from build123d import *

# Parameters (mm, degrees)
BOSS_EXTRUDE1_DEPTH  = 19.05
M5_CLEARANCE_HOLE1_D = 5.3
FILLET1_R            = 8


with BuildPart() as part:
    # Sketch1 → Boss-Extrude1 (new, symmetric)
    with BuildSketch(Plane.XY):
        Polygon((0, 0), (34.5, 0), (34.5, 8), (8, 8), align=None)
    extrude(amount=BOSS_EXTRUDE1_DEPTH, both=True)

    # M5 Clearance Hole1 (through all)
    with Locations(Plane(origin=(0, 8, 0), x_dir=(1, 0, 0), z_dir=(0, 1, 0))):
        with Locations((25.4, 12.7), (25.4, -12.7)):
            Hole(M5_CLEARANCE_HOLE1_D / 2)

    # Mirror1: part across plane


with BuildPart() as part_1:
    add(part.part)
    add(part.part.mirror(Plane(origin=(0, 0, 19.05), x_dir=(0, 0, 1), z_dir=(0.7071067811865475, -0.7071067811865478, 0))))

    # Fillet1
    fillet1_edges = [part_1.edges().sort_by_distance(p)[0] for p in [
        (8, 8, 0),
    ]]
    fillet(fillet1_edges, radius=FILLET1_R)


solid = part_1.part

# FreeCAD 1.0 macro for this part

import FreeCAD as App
import Part
import Sketcher
from FreeCAD import Vector
Q = App.Units.Quantity


def edges_at(feature, points):
    """Names of the edges that pass closest to the given points."""
    edges = feature.Shape.Edges
    near = lambda p: min(range(len(edges)), key=lambda i: edges[i].distToShape(Part.Vertex(*p))[0])
    return sorted({f"Edge{near(p) + 1}" for p in points})


def add_polygon(sketch, points):
    """Adds a closed chain of lines whose ends are joined by coincident constraints."""
    first, n = sketch.GeometryCount, len(points)
    for a, b in zip(points, points[1:] + points[:1]):
        sketch.addGeometry(Part.LineSegment(App.Vector(*a, 0), App.Vector(*b, 0)), False)
    for i in range(n):
        sketch.addConstraint(Sketcher.Constraint("Coincident", first + i, 2, first + (i + 1) % n, 1))

doc = App.newDocument("Part")
body = doc.addObject("PartDesign::Body", "Body")

sketch1 = body.newObject("Sketcher::SketchObject", "Sketch")
sketch1.AttachmentSupport = (doc.getObject("XY_Plane"), [""])
sketch1.MapMode = "FlatFace"
add_polygon(sketch1, [(0, 0), (34.5, 0), (34.5, 8), (8, 8)])
sketch1.addConstraint([
    Sketcher.Constraint("Horizontal", 0),
    Sketcher.Constraint("Vertical", 1),
    Sketcher.Constraint("Horizontal", 2),
    Sketcher.Constraint("Coincident", 3, 2, -1, 1),
    Sketcher.Constraint("DistanceY", 1, 1, 1, 2, 8.0),
    Sketcher.Constraint("Angle", 3, Q("-135 deg")),
    Sketcher.Constraint("DistanceX", 0, 1, 0, 2, 34.5),
])
pad1 = body.newObject("PartDesign::Pad", "Pad")
pad1.Profile = sketch1
pad1.Length = 38.1
pad1.Midplane = True

sketch2 = body.newObject("Sketcher::SketchObject", "Sketch001")
sketch2.AttachmentSupport = (doc.getObject("XZ_Plane"), [""])
sketch2.MapMode = "FlatFace"
sketch2.AttachmentOffset = App.Placement(Vector(0, 0, -8), App.Rotation())
sketch2.addGeometry([
    Part.Circle(Vector(25.4, -12.7, 0), Vector(0, 0, 1), 2.65),
    Part.Circle(Vector(25.4, 12.7, 0), Vector(0, 0, 1), 2.65),
], False)
sketch2.addConstraint([
    Sketcher.Constraint("Equal", 0, 1),
    Sketcher.Constraint("Symmetric", 0, 3, 1, 3, -1),
    Sketcher.Constraint("Diameter", 0, 5.3),
    Sketcher.Constraint("DistanceX", -1, 1, 0, 3, 25.4),
    Sketcher.Constraint("DistanceY", 0, 3, -1, 1, 12.7),
])
doc.recompute()
hole = body.newObject("PartDesign::Hole", "Hole")
hole.Profile = sketch2
hole.ThreadType = "None"
hole.Diameter = 5.3
hole.DepthType = "ThroughAll"
hole.Reversed = True
body2 = doc.addObject("PartDesign::Body", "Body001")
doc.recompute()

body2.BaseFeature = body
doc.recompute()

mirroring = doc.addObject("Part::Mirroring", "Mirroring")
mirroring.Source = body
mirroring.Base = Vector(0, 0, 19.05)
mirroring.Normal = Vector(0.707106781, -0.707106781, 0)
body3 = doc.addObject("PartDesign::Body", "Body002")
body3.BaseFeature = mirroring
boolean = body2.newObject("PartDesign::Boolean", "Boolean")
boolean.Type = "Fuse"
boolean.addObjects([body3])
doc.recompute()

fillet = body2.newObject("PartDesign::Fillet", "Fillet")
fillet.Base = (boolean, edges_at(boolean, [(8, 8, 0)]))
fillet.Radius = 8
mirroring.Visibility = False

doc.recompute()
